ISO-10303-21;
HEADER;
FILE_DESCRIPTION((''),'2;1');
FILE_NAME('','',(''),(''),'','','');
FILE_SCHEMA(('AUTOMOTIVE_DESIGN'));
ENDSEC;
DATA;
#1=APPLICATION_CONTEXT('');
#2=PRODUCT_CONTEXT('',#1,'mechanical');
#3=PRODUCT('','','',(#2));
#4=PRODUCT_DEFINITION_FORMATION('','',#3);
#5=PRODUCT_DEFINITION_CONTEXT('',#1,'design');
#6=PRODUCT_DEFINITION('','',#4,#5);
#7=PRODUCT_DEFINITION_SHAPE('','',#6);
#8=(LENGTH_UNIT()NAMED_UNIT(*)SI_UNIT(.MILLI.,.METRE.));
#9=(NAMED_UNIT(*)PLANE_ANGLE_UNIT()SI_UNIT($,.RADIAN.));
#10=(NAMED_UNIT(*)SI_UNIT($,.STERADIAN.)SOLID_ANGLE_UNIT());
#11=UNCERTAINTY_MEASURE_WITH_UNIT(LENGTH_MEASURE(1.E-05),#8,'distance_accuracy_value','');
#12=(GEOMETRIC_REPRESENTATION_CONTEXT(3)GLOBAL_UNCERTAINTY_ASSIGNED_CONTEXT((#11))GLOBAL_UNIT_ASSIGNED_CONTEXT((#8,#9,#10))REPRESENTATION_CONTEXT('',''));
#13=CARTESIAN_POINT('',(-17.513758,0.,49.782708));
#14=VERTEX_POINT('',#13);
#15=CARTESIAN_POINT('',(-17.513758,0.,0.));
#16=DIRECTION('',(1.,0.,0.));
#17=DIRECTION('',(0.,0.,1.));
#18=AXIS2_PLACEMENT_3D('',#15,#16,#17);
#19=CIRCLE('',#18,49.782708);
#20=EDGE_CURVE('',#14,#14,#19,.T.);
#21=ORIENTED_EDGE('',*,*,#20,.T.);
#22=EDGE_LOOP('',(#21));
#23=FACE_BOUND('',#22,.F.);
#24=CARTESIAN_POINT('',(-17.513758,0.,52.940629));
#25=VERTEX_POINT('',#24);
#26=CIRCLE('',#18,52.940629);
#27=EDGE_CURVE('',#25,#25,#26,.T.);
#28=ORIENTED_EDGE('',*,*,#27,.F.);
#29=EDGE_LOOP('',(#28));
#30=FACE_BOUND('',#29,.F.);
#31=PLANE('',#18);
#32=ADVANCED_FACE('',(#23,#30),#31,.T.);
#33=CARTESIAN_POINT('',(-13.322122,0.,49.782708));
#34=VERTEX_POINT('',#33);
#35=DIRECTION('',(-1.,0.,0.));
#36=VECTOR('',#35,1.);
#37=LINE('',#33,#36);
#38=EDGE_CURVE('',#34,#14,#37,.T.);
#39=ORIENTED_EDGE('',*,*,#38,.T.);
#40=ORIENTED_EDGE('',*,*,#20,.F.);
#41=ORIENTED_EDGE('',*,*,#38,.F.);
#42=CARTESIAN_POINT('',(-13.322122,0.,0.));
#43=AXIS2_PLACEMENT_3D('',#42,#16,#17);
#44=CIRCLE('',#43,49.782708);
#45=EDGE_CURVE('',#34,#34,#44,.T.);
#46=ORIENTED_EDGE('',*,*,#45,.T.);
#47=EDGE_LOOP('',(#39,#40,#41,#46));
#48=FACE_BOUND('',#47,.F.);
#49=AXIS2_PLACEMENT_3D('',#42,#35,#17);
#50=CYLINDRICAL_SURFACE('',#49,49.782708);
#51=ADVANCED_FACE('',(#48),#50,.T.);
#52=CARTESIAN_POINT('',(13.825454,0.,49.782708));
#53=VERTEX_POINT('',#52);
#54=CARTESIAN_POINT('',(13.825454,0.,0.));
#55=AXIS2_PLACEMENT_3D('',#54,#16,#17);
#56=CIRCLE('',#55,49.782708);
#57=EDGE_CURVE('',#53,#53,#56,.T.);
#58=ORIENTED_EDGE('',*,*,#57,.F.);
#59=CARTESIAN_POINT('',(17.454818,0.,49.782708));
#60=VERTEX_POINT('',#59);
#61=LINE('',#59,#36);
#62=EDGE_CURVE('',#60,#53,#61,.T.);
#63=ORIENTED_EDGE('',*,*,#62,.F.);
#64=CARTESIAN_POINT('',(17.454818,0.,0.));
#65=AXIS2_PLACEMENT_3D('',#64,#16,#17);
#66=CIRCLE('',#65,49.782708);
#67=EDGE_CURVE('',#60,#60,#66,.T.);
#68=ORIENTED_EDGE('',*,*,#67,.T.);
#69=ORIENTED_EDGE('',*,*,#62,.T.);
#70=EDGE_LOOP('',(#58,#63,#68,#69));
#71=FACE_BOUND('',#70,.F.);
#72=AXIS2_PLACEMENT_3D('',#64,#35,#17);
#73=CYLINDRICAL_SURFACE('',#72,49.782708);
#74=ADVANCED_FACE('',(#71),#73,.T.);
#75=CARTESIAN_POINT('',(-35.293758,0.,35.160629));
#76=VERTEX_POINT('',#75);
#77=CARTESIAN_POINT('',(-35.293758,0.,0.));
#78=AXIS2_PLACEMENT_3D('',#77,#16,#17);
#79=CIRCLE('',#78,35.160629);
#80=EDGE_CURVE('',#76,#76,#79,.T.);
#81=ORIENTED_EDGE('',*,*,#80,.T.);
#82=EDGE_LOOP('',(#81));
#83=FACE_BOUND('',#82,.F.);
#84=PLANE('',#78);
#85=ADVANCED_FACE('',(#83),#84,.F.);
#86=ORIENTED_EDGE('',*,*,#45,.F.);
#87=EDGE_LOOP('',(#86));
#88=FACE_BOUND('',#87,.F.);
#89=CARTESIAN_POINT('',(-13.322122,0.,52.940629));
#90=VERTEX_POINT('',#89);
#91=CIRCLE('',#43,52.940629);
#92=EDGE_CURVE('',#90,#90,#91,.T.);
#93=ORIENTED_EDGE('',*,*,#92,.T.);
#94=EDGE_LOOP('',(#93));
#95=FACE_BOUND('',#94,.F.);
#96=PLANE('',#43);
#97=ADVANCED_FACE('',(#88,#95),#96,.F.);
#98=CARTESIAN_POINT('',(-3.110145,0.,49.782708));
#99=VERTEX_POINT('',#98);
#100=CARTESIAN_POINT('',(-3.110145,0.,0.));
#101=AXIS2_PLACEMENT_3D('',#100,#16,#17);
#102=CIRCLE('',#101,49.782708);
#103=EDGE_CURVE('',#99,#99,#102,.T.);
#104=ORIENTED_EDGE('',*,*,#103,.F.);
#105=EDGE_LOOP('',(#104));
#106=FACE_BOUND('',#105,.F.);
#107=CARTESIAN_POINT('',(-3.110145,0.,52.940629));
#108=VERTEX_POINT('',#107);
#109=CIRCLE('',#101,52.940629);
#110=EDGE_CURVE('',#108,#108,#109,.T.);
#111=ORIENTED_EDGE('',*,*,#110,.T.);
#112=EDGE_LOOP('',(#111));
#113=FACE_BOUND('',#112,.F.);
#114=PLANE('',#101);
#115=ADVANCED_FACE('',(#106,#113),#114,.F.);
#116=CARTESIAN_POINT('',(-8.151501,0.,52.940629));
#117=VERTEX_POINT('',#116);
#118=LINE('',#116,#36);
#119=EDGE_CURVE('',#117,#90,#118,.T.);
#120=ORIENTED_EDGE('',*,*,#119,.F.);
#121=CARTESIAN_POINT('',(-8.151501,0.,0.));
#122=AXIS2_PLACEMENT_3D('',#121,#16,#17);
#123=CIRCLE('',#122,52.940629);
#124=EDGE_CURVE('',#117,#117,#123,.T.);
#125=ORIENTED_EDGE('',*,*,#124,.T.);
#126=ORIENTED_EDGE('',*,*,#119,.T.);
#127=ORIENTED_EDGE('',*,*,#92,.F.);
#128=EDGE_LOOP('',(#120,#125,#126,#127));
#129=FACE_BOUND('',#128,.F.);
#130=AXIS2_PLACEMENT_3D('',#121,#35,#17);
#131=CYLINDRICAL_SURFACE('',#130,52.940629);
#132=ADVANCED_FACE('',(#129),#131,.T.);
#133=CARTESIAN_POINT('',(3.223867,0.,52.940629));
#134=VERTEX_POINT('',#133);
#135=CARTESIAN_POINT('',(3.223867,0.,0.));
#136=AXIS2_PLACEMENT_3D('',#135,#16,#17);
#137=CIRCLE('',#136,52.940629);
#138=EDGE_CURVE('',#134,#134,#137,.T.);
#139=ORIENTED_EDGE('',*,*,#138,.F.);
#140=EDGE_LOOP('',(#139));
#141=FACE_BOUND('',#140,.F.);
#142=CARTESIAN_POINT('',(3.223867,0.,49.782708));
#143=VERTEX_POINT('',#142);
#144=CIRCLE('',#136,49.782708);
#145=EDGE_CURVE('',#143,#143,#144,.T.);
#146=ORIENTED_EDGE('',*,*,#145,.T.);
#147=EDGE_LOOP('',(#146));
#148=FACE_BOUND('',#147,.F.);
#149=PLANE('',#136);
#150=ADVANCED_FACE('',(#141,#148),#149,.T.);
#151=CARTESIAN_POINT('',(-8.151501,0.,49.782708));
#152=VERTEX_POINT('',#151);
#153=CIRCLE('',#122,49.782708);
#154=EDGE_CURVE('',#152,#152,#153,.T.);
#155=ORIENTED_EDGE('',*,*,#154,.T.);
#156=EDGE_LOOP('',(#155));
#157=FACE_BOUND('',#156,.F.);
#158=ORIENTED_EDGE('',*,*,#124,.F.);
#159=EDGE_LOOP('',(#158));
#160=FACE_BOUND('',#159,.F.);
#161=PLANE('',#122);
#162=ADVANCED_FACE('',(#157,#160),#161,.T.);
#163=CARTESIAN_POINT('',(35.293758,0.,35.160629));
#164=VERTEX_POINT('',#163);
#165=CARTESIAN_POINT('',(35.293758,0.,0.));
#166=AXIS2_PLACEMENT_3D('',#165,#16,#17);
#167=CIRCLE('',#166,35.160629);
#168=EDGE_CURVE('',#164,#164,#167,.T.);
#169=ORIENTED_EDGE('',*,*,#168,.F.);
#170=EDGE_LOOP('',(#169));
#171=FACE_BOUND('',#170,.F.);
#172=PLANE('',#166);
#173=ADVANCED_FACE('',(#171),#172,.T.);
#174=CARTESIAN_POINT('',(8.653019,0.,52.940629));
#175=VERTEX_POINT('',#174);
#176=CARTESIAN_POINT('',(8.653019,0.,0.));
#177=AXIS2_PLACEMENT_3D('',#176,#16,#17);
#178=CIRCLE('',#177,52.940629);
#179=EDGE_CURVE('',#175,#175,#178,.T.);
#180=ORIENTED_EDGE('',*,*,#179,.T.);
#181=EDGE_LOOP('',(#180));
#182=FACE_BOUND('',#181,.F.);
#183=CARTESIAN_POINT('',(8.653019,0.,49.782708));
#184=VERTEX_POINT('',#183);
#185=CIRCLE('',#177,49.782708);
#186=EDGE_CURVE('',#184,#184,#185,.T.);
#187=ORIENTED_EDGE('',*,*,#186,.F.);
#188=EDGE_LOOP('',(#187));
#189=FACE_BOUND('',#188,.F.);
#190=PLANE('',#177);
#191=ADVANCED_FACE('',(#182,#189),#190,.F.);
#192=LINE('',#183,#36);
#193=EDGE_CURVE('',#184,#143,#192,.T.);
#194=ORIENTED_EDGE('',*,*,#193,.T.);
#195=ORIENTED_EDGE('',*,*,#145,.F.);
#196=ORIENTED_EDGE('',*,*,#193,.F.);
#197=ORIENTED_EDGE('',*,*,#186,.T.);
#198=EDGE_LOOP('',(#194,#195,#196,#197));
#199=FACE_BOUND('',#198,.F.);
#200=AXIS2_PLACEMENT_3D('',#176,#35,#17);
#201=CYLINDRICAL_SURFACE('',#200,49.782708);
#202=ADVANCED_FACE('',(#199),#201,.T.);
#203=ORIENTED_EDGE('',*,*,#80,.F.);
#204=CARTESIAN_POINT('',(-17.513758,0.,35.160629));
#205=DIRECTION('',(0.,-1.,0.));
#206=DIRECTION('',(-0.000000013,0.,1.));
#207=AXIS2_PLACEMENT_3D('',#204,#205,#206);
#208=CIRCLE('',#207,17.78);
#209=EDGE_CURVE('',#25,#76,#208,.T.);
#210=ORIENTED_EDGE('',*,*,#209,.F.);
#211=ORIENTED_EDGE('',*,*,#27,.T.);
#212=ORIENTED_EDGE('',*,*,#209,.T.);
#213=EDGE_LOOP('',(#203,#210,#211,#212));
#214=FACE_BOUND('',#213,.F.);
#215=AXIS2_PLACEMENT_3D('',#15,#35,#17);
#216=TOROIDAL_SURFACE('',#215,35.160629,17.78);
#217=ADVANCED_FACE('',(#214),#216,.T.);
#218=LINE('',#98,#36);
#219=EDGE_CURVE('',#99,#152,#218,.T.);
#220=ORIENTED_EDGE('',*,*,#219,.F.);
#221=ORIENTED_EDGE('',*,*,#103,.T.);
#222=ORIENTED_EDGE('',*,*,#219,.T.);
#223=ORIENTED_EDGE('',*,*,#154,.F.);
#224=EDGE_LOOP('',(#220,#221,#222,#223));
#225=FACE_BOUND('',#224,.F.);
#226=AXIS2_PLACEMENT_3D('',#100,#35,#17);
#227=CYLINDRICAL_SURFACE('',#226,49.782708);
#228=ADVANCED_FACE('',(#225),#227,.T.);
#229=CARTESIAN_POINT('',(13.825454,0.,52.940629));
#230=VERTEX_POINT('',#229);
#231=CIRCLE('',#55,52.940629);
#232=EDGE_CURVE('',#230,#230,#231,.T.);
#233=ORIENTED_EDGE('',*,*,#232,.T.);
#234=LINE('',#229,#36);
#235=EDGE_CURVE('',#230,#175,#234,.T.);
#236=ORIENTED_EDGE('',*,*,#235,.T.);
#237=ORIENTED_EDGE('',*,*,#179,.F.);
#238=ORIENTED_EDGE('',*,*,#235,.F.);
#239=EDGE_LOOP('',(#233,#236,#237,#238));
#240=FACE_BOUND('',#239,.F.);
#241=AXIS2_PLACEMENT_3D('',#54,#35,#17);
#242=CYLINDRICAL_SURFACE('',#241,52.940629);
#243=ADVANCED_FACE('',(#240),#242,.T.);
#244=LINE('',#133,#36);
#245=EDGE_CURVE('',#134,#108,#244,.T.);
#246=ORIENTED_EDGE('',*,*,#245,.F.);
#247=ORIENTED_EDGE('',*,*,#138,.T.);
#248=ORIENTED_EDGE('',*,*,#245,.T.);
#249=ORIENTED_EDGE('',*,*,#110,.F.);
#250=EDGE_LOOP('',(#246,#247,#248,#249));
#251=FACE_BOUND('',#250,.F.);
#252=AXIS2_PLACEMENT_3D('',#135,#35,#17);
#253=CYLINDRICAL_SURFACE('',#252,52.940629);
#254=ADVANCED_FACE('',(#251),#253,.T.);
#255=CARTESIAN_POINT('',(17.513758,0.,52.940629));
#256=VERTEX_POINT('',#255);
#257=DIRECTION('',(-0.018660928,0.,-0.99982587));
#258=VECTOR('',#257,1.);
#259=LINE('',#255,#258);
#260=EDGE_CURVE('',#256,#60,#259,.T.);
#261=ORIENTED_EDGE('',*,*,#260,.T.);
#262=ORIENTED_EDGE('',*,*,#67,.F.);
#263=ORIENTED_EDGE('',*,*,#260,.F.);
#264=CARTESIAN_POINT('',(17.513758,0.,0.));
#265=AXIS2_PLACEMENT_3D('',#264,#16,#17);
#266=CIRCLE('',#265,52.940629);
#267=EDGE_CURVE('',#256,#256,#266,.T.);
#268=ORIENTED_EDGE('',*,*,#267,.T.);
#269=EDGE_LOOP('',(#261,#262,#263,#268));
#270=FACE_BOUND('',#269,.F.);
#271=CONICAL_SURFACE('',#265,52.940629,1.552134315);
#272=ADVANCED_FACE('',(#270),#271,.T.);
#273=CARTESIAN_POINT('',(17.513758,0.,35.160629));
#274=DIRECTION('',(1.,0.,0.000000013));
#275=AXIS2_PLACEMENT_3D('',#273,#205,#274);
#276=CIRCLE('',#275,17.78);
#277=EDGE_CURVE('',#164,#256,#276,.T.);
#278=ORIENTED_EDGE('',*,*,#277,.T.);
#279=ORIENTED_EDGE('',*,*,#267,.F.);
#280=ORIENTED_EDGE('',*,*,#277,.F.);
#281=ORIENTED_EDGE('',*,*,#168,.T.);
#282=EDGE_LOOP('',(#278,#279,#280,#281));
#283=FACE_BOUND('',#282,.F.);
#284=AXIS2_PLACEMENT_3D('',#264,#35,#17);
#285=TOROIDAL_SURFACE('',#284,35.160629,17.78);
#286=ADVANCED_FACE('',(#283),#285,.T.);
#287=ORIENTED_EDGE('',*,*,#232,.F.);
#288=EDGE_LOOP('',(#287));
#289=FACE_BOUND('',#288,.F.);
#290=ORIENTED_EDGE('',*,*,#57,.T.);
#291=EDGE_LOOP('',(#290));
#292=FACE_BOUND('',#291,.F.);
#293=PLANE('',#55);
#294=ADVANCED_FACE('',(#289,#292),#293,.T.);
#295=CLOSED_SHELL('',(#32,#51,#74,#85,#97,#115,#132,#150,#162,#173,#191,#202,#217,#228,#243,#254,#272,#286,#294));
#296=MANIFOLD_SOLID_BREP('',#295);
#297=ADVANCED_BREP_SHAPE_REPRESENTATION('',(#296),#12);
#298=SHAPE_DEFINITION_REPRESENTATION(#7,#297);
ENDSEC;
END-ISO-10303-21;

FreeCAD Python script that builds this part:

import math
import FreeCAD as App
import Part
import Sketcher

V = App.Vector
Q = App.Units.Quantity

doc = App.newDocument("Part")
params = doc.addObject("Spreadsheet::Sheet", "Params")
for row, (alias, value) in enumerate([
    ("sketch1_radius", "0.7 in"),
    ("revolution_angle", "360 deg"),
], start=1):
    params.set(f"A{row}", alias)
    params.set(f"B{row}", "=" + value)
    params.setAlias(f"B{row}", alias)

body = doc.addObject("PartDesign::Body", "Body")

sketch1 = doc.addObject("Sketcher::SketchObject", "Sketch")
body.addObject(sketch1)
sketch1.AttachmentSupport = (doc.XZ_Plane, [""])
sketch1.MapMode = "FlatFace"
sketch1.addGeometry(Part.LineSegment(V(13.825454, 49.782708, 0), V(13.825454, 52.940629, 0)), False)
sketch1.addGeometry(Part.LineSegment(V(13.825454, 52.940629, 0), V(8.653019, 52.940629, 0)), False)
sketch1.addGeometry(Part.LineSegment(V(8.653019, 52.940629, 0), V(8.653019, 49.782708, 0)), False)
sketch1.addGeometry(Part.LineSegment(V(8.653019, 49.782708, 0), V(3.223867, 49.782708, 0)), False)
sketch1.addGeometry(Part.LineSegment(V(3.223867, 49.782708, 0), V(3.223867, 52.940629, 0)), False)
sketch1.addGeometry(Part.LineSegment(V(3.223867, 52.940629, 0), V(-3.110145, 52.940629, 0)), False)
sketch1.addGeometry(Part.LineSegment(V(-3.110145, 52.940629, 0), V(-3.110145, 49.782708, 0)), False)
sketch1.addGeometry(Part.LineSegment(V(-3.110145, 49.782708, 0), V(-8.151501, 49.782708, 0)), False)
sketch1.addGeometry(Part.LineSegment(V(-8.151501, 49.782708, 0), V(-8.151501, 52.940629, 0)), False)
sketch1.addGeometry(Part.LineSegment(V(-8.151501, 52.940629, 0), V(-13.322122, 52.940629, 0)), False)
sketch1.addGeometry(Part.LineSegment(V(-13.322122, 52.940629, 0), V(-13.322122, 49.782708, 0)), False)
sketch1.addGeometry(Part.LineSegment(V(-13.322122, 49.782708, 0), V(-17.513758, 49.782708, 0)), False)
sketch1.addGeometry(Part.LineSegment(V(-17.513758, 49.782708, 0), V(-17.513758, 52.940629, 0)), False)
sketch1.addGeometry(Part.ArcOfCircle(Part.Circle(V(-17.513758, 35.160629, 0), V(0, 0, 1), 17.78), math.radians(90.000001), math.radians(179.999999)), False)
sketch1.addGeometry(Part.LineSegment(V(-35.293758, 35.160629, 0), V(-35.293758, 0, 0)), False)
sketch1.addGeometry(Part.LineSegment(V(-35.293758, 0, 0), V(35.293758, 0, 0)), False)
sketch1.addGeometry(Part.LineSegment(V(35.293758, 0, 0), V(35.293758, 35.160629, 0)), False)
sketch1.addGeometry(Part.ArcOfCircle(Part.Circle(V(17.513758, 35.160629, 0), V(0, 0, 1), 17.78), math.radians(0.000001), math.radians(89.999999)), False)
sketch1.addGeometry(Part.LineSegment(V(17.513758, 52.940629, 0), V(17.454818, 49.782708, 0)), False)
sketch1.addGeometry(Part.LineSegment(V(17.454818, 49.782708, 0), V(13.825454, 49.782708, 0)), False)
sketch1.addConstraint(Sketcher.Constraint("Coincident", 0, 2, 1, 1))
sketch1.addConstraint(Sketcher.Constraint("Coincident", 1, 2, 2, 1))
sketch1.addConstraint(Sketcher.Constraint("Coincident", 2, 2, 3, 1))
sketch1.addConstraint(Sketcher.Constraint("Coincident", 3, 2, 4, 1))
sketch1.addConstraint(Sketcher.Constraint("Coincident", 4, 2, 5, 1))
sketch1.addConstraint(Sketcher.Constraint("Coincident", 5, 2, 6, 1))
sketch1.addConstraint(Sketcher.Constraint("Coincident", 6, 2, 7, 1))
sketch1.addConstraint(Sketcher.Constraint("Coincident", 7, 2, 8, 1))
sketch1.addConstraint(Sketcher.Constraint("Coincident", 8, 2, 9, 1))
sketch1.addConstraint(Sketcher.Constraint("Coincident", 9, 2, 10, 1))
sketch1.addConstraint(Sketcher.Constraint("Coincident", 10, 2, 11, 1))
sketch1.addConstraint(Sketcher.Constraint("Coincident", 11, 2, 12, 1))
sketch1.addConstraint(Sketcher.Constraint("Coincident", 12, 2, 13, 1))
sketch1.addConstraint(Sketcher.Constraint("Tangent", 13, 2, 14, 1))
sketch1.addConstraint(Sketcher.Constraint("Coincident", 14, 2, 15, 1))
sketch1.addConstraint(Sketcher.Constraint("Coincident", 15, 2, 16, 1))
sketch1.addConstraint(Sketcher.Constraint("Tangent", 16, 2, 17, 1))
sketch1.addConstraint(Sketcher.Constraint("Coincident", 17, 2, 18, 1))
sketch1.addConstraint(Sketcher.Constraint("Coincident", 18, 2, 19, 1))
sketch1.addConstraint(Sketcher.Constraint("Coincident", 19, 2, 0, 1))
sketch1.addConstraint(Sketcher.Constraint("Vertical", 0))
sketch1.addConstraint(Sketcher.Constraint("Horizontal", 1))
sketch1.addConstraint(Sketcher.Constraint("Vertical", 2))
sketch1.addConstraint(Sketcher.Constraint("Horizontal", 3))
sketch1.addConstraint(Sketcher.Constraint("Vertical", 4))
sketch1.addConstraint(Sketcher.Constraint("Horizontal", 5))
sketch1.addConstraint(Sketcher.Constraint("Vertical", 6))
sketch1.addConstraint(Sketcher.Constraint("Horizontal", 7))
sketch1.addConstraint(Sketcher.Constraint("Vertical", 8))
sketch1.addConstraint(Sketcher.Constraint("Horizontal", 9))
sketch1.addConstraint(Sketcher.Constraint("Vertical", 10))
sketch1.addConstraint(Sketcher.Constraint("Horizontal", 11))
sketch1.addConstraint(Sketcher.Constraint("Vertical", 12))
sketch1.addConstraint(Sketcher.Constraint("Vertical", 14))
sketch1.addConstraint(Sketcher.Constraint("Horizontal", 15))
sketch1.addConstraint(Sketcher.Constraint("Vertical", 16))
sketch1.addConstraint(Sketcher.Constraint("Horizontal", 19))
sketch1.addConstraint(Sketcher.Constraint("Equal", 13, 17))
sketch1.addConstraint(Sketcher.Constraint("Symmetric", 14, 2, 15, 2, -1, 1))
sketch1.addConstraint(Sketcher.Constraint("Symmetric", 12, 2, 17, 2, -2))
sketch1.addConstraint(Sketcher.Constraint("Horizontal", 1, 2, 4, 2))
sketch1.addConstraint(Sketcher.Constraint("Horizontal", 3, 2, 6, 2))
sketch1.addConstraint(Sketcher.Constraint("Horizontal", 5, 2, 8, 2))
sketch1.addConstraint(Sketcher.Constraint("Horizontal", 7, 2, 10, 2))
sketch1.addConstraint(Sketcher.Constraint("Horizontal", 9, 2, 12, 2))
sketch1.addConstraint(Sketcher.Constraint("Horizontal", 11, 2, 18, 2))
sketch1.addConstraint(Sketcher.Constraint("Vertical", 13, 3, 11, 2))
sketch1.addConstraint(Sketcher.Constraint("Radius", 13, Q("0.7 in")))
sketch1.addConstraint(Sketcher.Constraint("DistanceX", 5, 2, 5, 1, Q("6.334012 mm")))
sketch1.addConstraint(Sketcher.Constraint("DistanceX", 9, 2, 9, 1, Q("5.170621 mm")))
sketch1.addConstraint(Sketcher.Constraint("DistanceY", 0, 1, 0, 2, Q("3.157921 mm")))
sketch1.addConstraint(Sketcher.Constraint("DistanceY", 14, 2, 14, 1, Q("35.160629 mm")))
sketch1.addConstraint(Sketcher.Constraint("DistanceX", 7, 2, -1, 1, Q("8.151501 mm")))
sketch1.addConstraint(Sketcher.Constraint("DistanceX", 5, 2, 0, 2, Q("16.935599 mm")))
sketch1.addConstraint(Sketcher.Constraint("DistanceX", 2, 2, 18, 2, Q("8.801799 mm")))
sketch1.addConstraint(Sketcher.Constraint("Distance", 18, Q("3.158471 mm")))
sketch1.addConstraint(Sketcher.Constraint("DistanceX", 1, 2, 1, 1, Q("5.172435 mm")))
sketch1.addConstraint(Sketcher.Constraint("DistanceX", 7, 2, 7, 1, Q("5.041356 mm")))
sketch1.setExpression("Constraints[47]", "Params.sketch1_radius")
revolution = doc.addObject("PartDesign::Revolution", "Revolution")
body.addObject(revolution)
revolution.Profile = sketch1
revolution.ReferenceAxis = (sketch1, ["H_Axis"])
revolution.setExpression("Angle", "Params.revolution_angle")

doc.recompute()
